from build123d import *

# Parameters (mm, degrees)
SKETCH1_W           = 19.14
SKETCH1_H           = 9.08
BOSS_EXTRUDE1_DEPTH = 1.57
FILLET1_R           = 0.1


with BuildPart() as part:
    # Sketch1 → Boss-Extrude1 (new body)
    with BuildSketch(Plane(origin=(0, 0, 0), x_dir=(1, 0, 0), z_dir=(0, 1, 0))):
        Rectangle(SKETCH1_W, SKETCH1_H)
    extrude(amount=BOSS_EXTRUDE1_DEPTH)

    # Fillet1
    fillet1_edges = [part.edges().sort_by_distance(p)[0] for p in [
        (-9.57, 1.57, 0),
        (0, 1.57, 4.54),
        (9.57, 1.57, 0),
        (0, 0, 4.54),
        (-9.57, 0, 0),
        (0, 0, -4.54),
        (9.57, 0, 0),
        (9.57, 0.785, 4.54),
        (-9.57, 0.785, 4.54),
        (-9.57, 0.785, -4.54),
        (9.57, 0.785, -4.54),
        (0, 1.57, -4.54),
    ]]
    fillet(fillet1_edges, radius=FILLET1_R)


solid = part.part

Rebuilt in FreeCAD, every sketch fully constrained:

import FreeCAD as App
import Part
import Sketcher
from FreeCAD import Vector

doc = App.newDocument("Part")
params = doc.addObject("Spreadsheet::Sheet", "Params")
for row, (alias, value) in enumerate([
    ("sketch1_width", "19.14 mm"),
    ("sketch1_height", "9.08 mm"),
    ("pad1_length", "1.57 mm"),
    ("fillet_radius", "0.1 mm"),
], start=1):
    params.set(f"A{row}", alias)
    params.set(f"B{row}", "=" + value)
    params.setAlias(f"B{row}", alias)

body = doc.addObject("PartDesign::Body", "Body")

# Sketch on XZ plane
sketch1 = doc.addObject("Sketcher::SketchObject", "Sketch")
body.addObject(sketch1)
sketch1.AttachmentSupport = (doc.XZ_Plane, [""])
sketch1.MapMode = "FlatFace"
sketch1.addGeometry(Part.LineSegment(Vector(-10, -5, 0), Vector(-10, 5, 0)), False)
sketch1.addGeometry(Part.LineSegment(Vector(-10, 5, 0), Vector(10, 5, 0)), False)
sketch1.addGeometry(Part.LineSegment(Vector(10, 5, 0), Vector(10, -5, 0)), False)
sketch1.addGeometry(Part.LineSegment(Vector(10, -5, 0), Vector(-10, -5, 0)), False)
sketch1.addConstraint(Sketcher.Constraint("Coincident", 0, 2, 1, 1))
sketch1.addConstraint(Sketcher.Constraint("Coincident", 1, 2, 2, 1))
sketch1.addConstraint(Sketcher.Constraint("Coincident", 2, 2, 3, 1))
sketch1.addConstraint(Sketcher.Constraint("Coincident", 3, 2, 0, 1))
sketch1.addConstraint(Sketcher.Constraint("Vertical", 0))
sketch1.addConstraint(Sketcher.Constraint("Horizontal", 1))
sketch1.addConstraint(Sketcher.Constraint("Vertical", 2))
sketch1.addConstraint(Sketcher.Constraint("Horizontal", 3))
sketch1.addConstraint(Sketcher.Constraint("Symmetric", 0, 2, 2, 2, -1, 1))
sketch1.addConstraint(Sketcher.Constraint("DistanceX", 1, 1, 1, 2, 19.14))
sketch1.addConstraint(Sketcher.Constraint("DistanceY", 0, 1, 0, 2, 9.08))
sketch1.setExpression("Constraints[9]", "Params.sketch1_width")
sketch1.setExpression("Constraints[10]", "Params.sketch1_height")
pad1 = doc.addObject("PartDesign::Pad", "Pad")
body.addObject(pad1)
pad1.Profile = sketch1
pad1.setExpression("Length", "Params.pad1_length")
pad1.Reversed = True
doc.recompute()

fillet = doc.addObject("PartDesign::Fillet", "Fillet")
body.addObject(fillet)
fillet.Base = (pad1, ["Edge1"])
fillet.UseAllEdges = True
fillet.setExpression("Radius", "Params.fillet_radius")

doc.recompute()
